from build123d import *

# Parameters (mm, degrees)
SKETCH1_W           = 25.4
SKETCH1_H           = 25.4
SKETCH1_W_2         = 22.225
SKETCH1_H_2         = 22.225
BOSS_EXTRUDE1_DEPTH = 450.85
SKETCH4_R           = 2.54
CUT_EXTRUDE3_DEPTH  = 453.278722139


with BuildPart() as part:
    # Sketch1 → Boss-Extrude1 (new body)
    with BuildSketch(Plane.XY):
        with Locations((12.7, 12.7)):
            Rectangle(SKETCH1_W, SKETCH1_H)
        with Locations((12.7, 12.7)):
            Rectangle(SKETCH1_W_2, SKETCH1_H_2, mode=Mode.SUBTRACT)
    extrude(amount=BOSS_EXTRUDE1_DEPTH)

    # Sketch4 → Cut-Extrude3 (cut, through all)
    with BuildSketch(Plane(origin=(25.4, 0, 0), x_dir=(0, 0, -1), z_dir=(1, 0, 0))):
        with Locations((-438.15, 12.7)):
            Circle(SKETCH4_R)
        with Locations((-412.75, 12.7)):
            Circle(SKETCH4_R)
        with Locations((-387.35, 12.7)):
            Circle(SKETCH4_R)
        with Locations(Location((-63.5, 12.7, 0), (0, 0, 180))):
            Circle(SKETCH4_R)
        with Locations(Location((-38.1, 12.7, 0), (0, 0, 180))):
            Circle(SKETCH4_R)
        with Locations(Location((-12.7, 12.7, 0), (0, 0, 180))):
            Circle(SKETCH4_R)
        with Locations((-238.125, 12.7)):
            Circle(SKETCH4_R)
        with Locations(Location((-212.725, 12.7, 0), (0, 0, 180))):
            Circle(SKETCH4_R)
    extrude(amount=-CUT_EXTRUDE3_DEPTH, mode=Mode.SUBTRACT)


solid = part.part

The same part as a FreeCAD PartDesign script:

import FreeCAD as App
import Part
import Sketcher
Q = App.Units.Quantity

doc = App.newDocument("Part")
body = doc.addObject("PartDesign::Body", "Body")

sketch1 = doc.addObject("Sketcher::SketchObject", "Sketch")
body.addObject(sketch1)
sketch1.AttachmentSupport = (doc.XY_Plane, [""])
sketch1.MapMode = "FlatFace"
sketch1.addGeometry([
    Part.LineSegment(App.Vector(0, 25, 0), App.Vector(0, 0, 0)),
    Part.LineSegment(App.Vector(0, 0, 0), App.Vector(25, 0, 0)),
    Part.LineSegment(App.Vector(25, 0, 0), App.Vector(25, 25, 0)),
    Part.LineSegment(App.Vector(25, 25, 0), App.Vector(0, 25, 0)),
    Part.LineSegment(App.Vector(24, 2, 0), App.Vector(2, 2, 0)),
    Part.LineSegment(App.Vector(2, 2, 0), App.Vector(2, 24, 0)),
    Part.LineSegment(App.Vector(2, 24, 0), App.Vector(24, 24, 0)),
    Part.LineSegment(App.Vector(24, 24, 0), App.Vector(24, 2, 0)),
], False)
sketch1.addConstraint([
    Sketcher.Constraint("Coincident", 0, 2, 1, 1),
    Sketcher.Constraint("Coincident", 1, 2, 2, 1),
    Sketcher.Constraint("Coincident", 2, 2, 3, 1),
    Sketcher.Constraint("Coincident", 3, 2, 0, 1),
    Sketcher.Constraint("Coincident", 4, 2, 5, 1),
    Sketcher.Constraint("Coincident", 5, 2, 6, 1),
    Sketcher.Constraint("Coincident", 6, 2, 7, 1),
    Sketcher.Constraint("Coincident", 7, 2, 4, 1),
    Sketcher.Constraint("Vertical", 0),
    Sketcher.Constraint("Horizontal", 1),
    Sketcher.Constraint("Vertical", 2),
    Sketcher.Constraint("Horizontal", 3),
    Sketcher.Constraint("Horizontal", 4),
    Sketcher.Constraint("Vertical", 5),
    Sketcher.Constraint("Horizontal", 6),
    Sketcher.Constraint("Vertical", 7),
    Sketcher.Constraint("Coincident", 0, 2, -1, 1),
    Sketcher.Constraint("Equal", 3, 0),
    Sketcher.Constraint("Equal", 6, 5),
    Sketcher.Constraint("DistanceX", 1, 1, 1, 2, Q("1 in")),
    Sketcher.Constraint("DistanceX", 4, 2, 4, 1, Q("0.875 in")),
    Sketcher.Constraint("DistanceX", -1, 1, 4, 2, Q("0.0625 in")),
    Sketcher.Constraint("DistanceY", -1, 1, 4, 2, Q("0.0625 in")),
])
pad1 = doc.addObject("PartDesign::Pad", "Pad")
body.addObject(pad1)
pad1.Profile = sketch1
pad1.Length = Q("17.75 in")

sketch2 = doc.addObject("Sketcher::SketchObject", "Sketch001")
body.addObject(sketch2)
sketch2.AttachmentSupport = (doc.YZ_Plane, [""])
sketch2.MapMode = "FlatFace"
sketch2.AttachmentOffset = App.Placement(App.Vector(0, 0, 1 * 25.4), App.Rotation())
sketch2.addGeometry([
    Part.Circle(App.Vector(12.7, 438.1, 0), App.Vector(0, 0, 1), 2.5),
    Part.Circle(App.Vector(12.7, 412.8, 0), App.Vector(0, 0, 1), 2.5),
    Part.Circle(App.Vector(12.7, 387.4, 0), App.Vector(0, 0, 1), 2.5),
    Part.Circle(App.Vector(12.7, 63.5, 0), App.Vector(0, 0, 1), 2.5),
    Part.Circle(App.Vector(12.7, 38.1, 0), App.Vector(0, 0, 1), 2.5),
    Part.Circle(App.Vector(12.7, 12.7, 0), App.Vector(0, 0, 1), 2.5),
    Part.Circle(App.Vector(12.7, 238.1, 0), App.Vector(0, 0, 1), 2.5),
    Part.Circle(App.Vector(12.7, 212.7, 0), App.Vector(0, 0, 1), 2.5),
], False)
sketch2.addConstraint([
    Sketcher.Constraint("Equal", 0, 1),
    Sketcher.Constraint("Equal", 1, 2),
    Sketcher.Constraint("Equal", 2, 3),
    Sketcher.Constraint("Equal", 3, 4),
    Sketcher.Constraint("Equal", 4, 5),
    Sketcher.Constraint("Equal", 5, 6),
    Sketcher.Constraint("Equal", 6, 7),
    Sketcher.Constraint("Vertical", 0, 3, 1, 3),
    Sketcher.Constraint("Vertical", 1, 3, 2, 3),
    Sketcher.Constraint("Vertical", 2, 3, 3, 3),
    Sketcher.Constraint("Vertical", 3, 3, 4, 3),
    Sketcher.Constraint("Vertical", 4, 3, 5, 3),
    Sketcher.Constraint("Vertical", 5, 3, 6, 3),
    Sketcher.Constraint("Vertical", 6, 3, 7, 3),
    Sketcher.Constraint("Diameter", 0, Q("0.2 in")),
    Sketcher.Constraint("DistanceY", 1, 3, 0, 3, Q("1 in")),
    Sketcher.Constraint("DistanceY", 2, 3, 1, 3, Q("1 in")),
    Sketcher.Constraint("DistanceY", 4, 3, 3, 3, Q("1 in")),
    Sketcher.Constraint("DistanceY", 5, 3, 4, 3, Q("1 in")),
    Sketcher.Constraint("DistanceY", 7, 3, 6, 3, Q("1 in")),
    Sketcher.Constraint("DistanceX", -1, 1, 0, 3, Q("0.5 in")),
    Sketcher.Constraint("DistanceY", -1, 1, 3, 3, Q("2.5 in")),
    Sketcher.Constraint("DistanceY", -1, 1, 0, 3, Q("17.25 in")),
    Sketcher.Constraint("DistanceY", -1, 1, 6, 3, Q("9.375 in")),
])
pocket1 = doc.addObject("PartDesign::Pocket", "Pocket")
body.addObject(pocket1)
pocket1.Profile = sketch2
pocket1.Type = "ThroughAll"

doc.recompute()
